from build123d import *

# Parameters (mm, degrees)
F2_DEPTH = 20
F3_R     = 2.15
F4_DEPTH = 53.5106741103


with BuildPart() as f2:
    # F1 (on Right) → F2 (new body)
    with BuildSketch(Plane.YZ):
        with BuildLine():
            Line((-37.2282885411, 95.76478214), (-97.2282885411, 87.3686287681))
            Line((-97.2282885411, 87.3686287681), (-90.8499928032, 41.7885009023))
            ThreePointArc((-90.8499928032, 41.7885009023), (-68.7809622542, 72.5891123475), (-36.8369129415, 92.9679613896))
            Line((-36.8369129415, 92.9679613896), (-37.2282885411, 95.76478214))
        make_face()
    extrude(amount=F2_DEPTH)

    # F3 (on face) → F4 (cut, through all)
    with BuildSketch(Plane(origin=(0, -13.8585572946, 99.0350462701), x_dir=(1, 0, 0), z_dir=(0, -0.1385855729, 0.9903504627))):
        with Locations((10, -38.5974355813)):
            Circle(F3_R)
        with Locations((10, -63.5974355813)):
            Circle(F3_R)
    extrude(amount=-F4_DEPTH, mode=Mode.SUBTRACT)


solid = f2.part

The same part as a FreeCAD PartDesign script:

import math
import FreeCAD as App
import Part
import Sketcher
from FreeCAD import Vector

doc = App.newDocument("Part")
params = doc.addObject("Spreadsheet::Sheet", "Params")
for row, (alias, value) in enumerate([
    ("sketch1_radius", "100 mm"),
    ("pad1_length", "20 mm"),
    ("sketch2_diameter", "4.3 mm"),
], start=1):
    params.set(f"A{row}", alias)
    params.set(f"B{row}", "=" + value)
    params.setAlias(f"B{row}", alias)

body = doc.addObject("PartDesign::Body", "Body")

sketch1 = body.newObject("Sketcher::SketchObject", "Sketch")
sketch1.AttachmentSupport = (doc.getObject("YZ_Plane"), [""])
sketch1.MapMode = "FlatFace"
sketch1.addGeometry(Part.LineSegment(Vector(-37.2, 95.8, 0), Vector(-97.2, 87.4, 0)), False)
sketch1.addGeometry(Part.LineSegment(Vector(-97.2, 87.4, 0), Vector(-90.8, 41.8, 0)), False)
sketch1.addGeometry(Part.ArcOfCircle(Part.Circle(Vector(0, 0, 0), Vector(0, 0, 1), 100), math.radians(112), math.radians(155)), False)
sketch1.addGeometry(Part.LineSegment(Vector(-36.8, 93, 0), Vector(-37.2, 95.8, 0)), False)
sketch1.addConstraint(Sketcher.Constraint("Coincident", 0, 2, 1, 1))
sketch1.addConstraint(Sketcher.Constraint("Coincident", 1, 2, 2, 2))
sketch1.addConstraint(Sketcher.Constraint("Coincident", 2, 1, 3, 1))
sketch1.addConstraint(Sketcher.Constraint("Coincident", 3, 2, 0, 1))
sketch1.addConstraint(Sketcher.Constraint("Coincident", 2, 3, -1, 1))
sketch1.addConstraint(Sketcher.Constraint("Perpendicular", 0, 1))
sketch1.addConstraint(Sketcher.Constraint("Parallel", 1, 3))
sketch1.addConstraint(Sketcher.Constraint("Radius", 2, 100.0))
sketch1.addConstraint(Sketcher.Constraint("DistanceX", 0, 2, 3, 2, 60.0))
sketch1.addConstraint(Sketcher.Constraint("DistanceY", -1, 1, 1, 2, 41.788501))
sketch1.addConstraint(Sketcher.Constraint("Distance", 1, 46.02424))
sketch1.addConstraint(Sketcher.Constraint("Distance", 3, 2.824072))
sketch1.setExpression("Constraints[7]", "Params.sketch1_radius")
pad1 = body.newObject("PartDesign::Pad", "Pad")
pad1.Profile = sketch1
pad1.setExpression("Length", "Params.pad1_length")

sketch2 = body.newObject("Sketcher::SketchObject", "Sketch001")
sketch2.Placement = App.Placement(Vector(0, -13.858557, 99.035046), App.Rotation(Vector(1, 0, 0), Vector(0, 0.990350463, 0.138585573), Vector(0, -0.138585573, 0.990350463), "ZXY"))
sketch2.addGeometry(Part.Circle(Vector(10, -38.6, 0), Vector(0, 0, 1), 2.1), False)
sketch2.addGeometry(Part.Circle(Vector(10, -63.6, 0), Vector(0, 0, 1), 2.1), False)
sketch2.addConstraint(Sketcher.Constraint("Equal", 0, 1))
sketch2.addConstraint(Sketcher.Constraint("Vertical", 0, 3, 1, 3))
sketch2.addConstraint(Sketcher.Constraint("Diameter", 0, 4.3))
sketch2.addConstraint(Sketcher.Constraint("DistanceX", -1, 1, 0, 3, 10.0))
sketch2.addConstraint(Sketcher.Constraint("DistanceY", 1, 3, 0, 3, 25.0))
sketch2.addConstraint(Sketcher.Constraint("DistanceY", 0, 3, -1, 1, 38.597436))
sketch2.setExpression("Constraints[2]", "Params.sketch2_diameter")
pocket1 = body.newObject("PartDesign::Pocket", "Pocket")
pocket1.Profile = sketch2
pocket1.Type = "ThroughAll"

doc.recompute()
